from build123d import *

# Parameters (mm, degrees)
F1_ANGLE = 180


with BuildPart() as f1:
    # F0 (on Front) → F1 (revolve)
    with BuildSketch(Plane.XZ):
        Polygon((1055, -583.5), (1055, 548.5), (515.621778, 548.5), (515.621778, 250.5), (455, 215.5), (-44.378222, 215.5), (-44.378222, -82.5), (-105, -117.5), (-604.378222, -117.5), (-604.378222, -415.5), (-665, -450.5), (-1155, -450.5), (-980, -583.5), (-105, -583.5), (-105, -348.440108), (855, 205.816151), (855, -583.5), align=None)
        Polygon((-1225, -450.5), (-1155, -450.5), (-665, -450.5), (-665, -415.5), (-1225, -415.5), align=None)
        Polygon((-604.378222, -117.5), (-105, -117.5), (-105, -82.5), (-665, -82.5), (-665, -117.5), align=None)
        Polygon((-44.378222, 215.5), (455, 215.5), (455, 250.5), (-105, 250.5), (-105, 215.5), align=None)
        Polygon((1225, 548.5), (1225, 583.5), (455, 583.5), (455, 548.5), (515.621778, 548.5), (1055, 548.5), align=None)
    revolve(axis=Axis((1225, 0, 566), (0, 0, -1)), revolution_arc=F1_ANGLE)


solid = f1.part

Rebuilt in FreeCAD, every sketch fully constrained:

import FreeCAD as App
import Part
import Sketcher
Q = App.Units.Quantity


def add_polygon(sketch, points):
    """Adds a closed chain of lines whose ends are joined by coincident constraints."""
    first, n = sketch.GeometryCount, len(points)
    for a, b in zip(points, points[1:] + points[:1]):
        sketch.addGeometry(Part.LineSegment(App.Vector(*a, 0), App.Vector(*b, 0)), False)
    for i in range(n):
        sketch.addConstraint(Sketcher.Constraint("Coincident", first + i, 2, first + (i + 1) % n, 1))

doc = App.newDocument("Part")
body = doc.addObject("PartDesign::Body", "Body")

# Sketch on XZ plane
sketch1 = body.newObject("Sketcher::SketchObject", "Sketch")
sketch1.AttachmentSupport = (doc.getObject("XZ_Plane"), [""])
sketch1.MapMode = "FlatFace"
add_polygon(sketch1, [(1055, -583.5), (1055, 548.5), (1225, 548.5), (1225, 583.5), (455, 583.5), (455, 548.5), (515.621778, 548.5), (515.621778, 250.5), (455, 215.5), (455, 250.5), (-105, 250.5), (-105, 215.5), (-44.378222, 215.5), (-44.378222, -82.5), (-105, -117.5), (-105, -82.5), (-665, -82.5), (-665, -117.5), (-604.378222, -117.5), (-604.378222, -415.5), (-665, -450.5), (-665, -415.5), (-1225, -415.5), (-1225, -450.5), (-1155, -450.5), (-980, -583.5), (-105, -583.5), (-105, -348.440108), (855, 205.816151), (855, -583.5)])  # lines 0-29
sketch1.addGeometry(Part.LineSegment(App.Vector(1225, 583.5, 0), App.Vector(1225, -583.5, 0)), True)  # axis
sketch1.addConstraint([
    Sketcher.Constraint("Vertical", 0),
    Sketcher.Constraint("Horizontal", 1),
    Sketcher.Constraint("Vertical", 2),
    Sketcher.Constraint("Horizontal", 3),
    Sketcher.Constraint("Vertical", 4),
    Sketcher.Constraint("Horizontal", 5),
    Sketcher.Constraint("Vertical", 6),
    Sketcher.Constraint("Vertical", 8),
    Sketcher.Constraint("Horizontal", 9),
    Sketcher.Constraint("Vertical", 10),
    Sketcher.Constraint("Horizontal", 11),
    Sketcher.Constraint("Vertical", 12),
    Sketcher.Constraint("Vertical", 14),
    Sketcher.Constraint("Horizontal", 15),
    Sketcher.Constraint("Vertical", 16),
    Sketcher.Constraint("Horizontal", 17),
    Sketcher.Constraint("Vertical", 18),
    Sketcher.Constraint("Vertical", 20),
    Sketcher.Constraint("Horizontal", 21),
    Sketcher.Constraint("Vertical", 22),
    Sketcher.Constraint("Horizontal", 23),
    Sketcher.Constraint("Horizontal", 25),
    Sketcher.Constraint("Vertical", 26),
    Sketcher.Constraint("Vertical", 28),
    Sketcher.Constraint("Horizontal", 29),
    Sketcher.Constraint("Vertical", 30),
    Sketcher.Constraint("Coincident", 30, 1, 2, 2),
    Sketcher.Constraint("Parallel", 7, 13),
    Sketcher.Constraint("Parallel", 13, 19),
    Sketcher.Constraint("Parallel", 19, 27),
    Sketcher.Constraint("Horizontal", 1, 2, 4, 2),
    Sketcher.Constraint("Horizontal", 6, 2, 8, 2),
    Sketcher.Constraint("Horizontal", 7, 2, 10, 2),
    Sketcher.Constraint("Horizontal", 12, 2, 14, 2),
    Sketcher.Constraint("Horizontal", 13, 2, 16, 2),
    Sketcher.Constraint("Horizontal", 18, 2, 20, 2),
    Sketcher.Constraint("Horizontal", 19, 2, 22, 2),
    Sketcher.Constraint("Horizontal", 25, 2, 28, 2),
    Sketcher.Constraint("Horizontal", 29, 2, 30, 2),
    Sketcher.Constraint("Vertical", 4, 2, 7, 2),
    Sketcher.Constraint("Vertical", 10, 2, 13, 2),
    Sketcher.Constraint("Vertical", 16, 2, 19, 2),
    Sketcher.Constraint("Vertical", 14, 2, 25, 2),
    Sketcher.Constraint("Equal", 5, 11),
    Sketcher.Constraint("Equal", 9, 15),
    Sketcher.Constraint("Equal", 11, 17),
    Sketcher.Constraint("Equal", 15, 21),
    Sketcher.Constraint("Equal", 4, 8),
    Sketcher.Constraint("Equal", 6, 12),
    Sketcher.Constraint("Equal", 12, 18),
    Sketcher.Constraint("DistanceX", 1, 1, 1, 2, 170.0),
    Sketcher.Constraint("DistanceX", 3, 2, 3, 1, 770.0),
    Sketcher.Constraint("DistanceX", 9, 2, 9, 1, 560.0),
    Sketcher.Constraint("DistanceX", 23, 1, 23, 2, 70.0),
    Sketcher.Constraint("DistanceX", 25, 1, 25, 2, 875.0),
    Sketcher.Constraint("DistanceX", 29, 1, 29, 2, 200.0),
    Sketcher.Constraint("DistanceY", 0, 1, 0, 2, 1132.0),
    Sketcher.Constraint("DistanceY", 2, 1, 2, 2, 35.0),
    Sketcher.Constraint("DistanceY", 6, 2, 6, 1, 298.0),
    Sketcher.Constraint("Angle", 7, Q("-150 deg")),
    Sketcher.Constraint("DistanceX", -1, 1, 0, 2, 1055.0),
    Sketcher.Constraint("DistanceY", -1, 1, 0, 2, 548.5),
    Sketcher.Constraint("DistanceY", 26, 1, 26, 2, 235.059892),
])
revolution = body.newObject("PartDesign::Revolution", "Revolution")
revolution.Profile = sketch1
revolution.ReferenceAxis = (sketch1, ["Axis0"])
revolution.Angle = 180

doc.recompute()
